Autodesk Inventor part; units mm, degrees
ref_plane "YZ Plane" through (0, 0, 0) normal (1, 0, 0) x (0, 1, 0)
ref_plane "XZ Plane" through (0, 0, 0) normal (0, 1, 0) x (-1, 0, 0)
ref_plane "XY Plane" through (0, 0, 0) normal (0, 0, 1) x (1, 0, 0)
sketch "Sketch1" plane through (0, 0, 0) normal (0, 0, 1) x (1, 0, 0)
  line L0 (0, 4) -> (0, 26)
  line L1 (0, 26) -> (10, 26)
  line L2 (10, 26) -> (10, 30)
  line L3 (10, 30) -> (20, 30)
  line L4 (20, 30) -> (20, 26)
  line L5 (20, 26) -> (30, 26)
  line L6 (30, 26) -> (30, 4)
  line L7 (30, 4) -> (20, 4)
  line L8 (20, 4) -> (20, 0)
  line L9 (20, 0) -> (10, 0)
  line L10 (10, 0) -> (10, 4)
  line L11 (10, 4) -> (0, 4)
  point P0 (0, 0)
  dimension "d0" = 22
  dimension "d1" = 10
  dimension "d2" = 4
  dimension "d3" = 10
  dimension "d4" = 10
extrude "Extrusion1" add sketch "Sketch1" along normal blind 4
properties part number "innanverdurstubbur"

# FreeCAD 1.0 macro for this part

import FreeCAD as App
import Part
import Sketcher

doc = App.newDocument("Part")
params = doc.addObject("Spreadsheet::Sheet", "Params")
for row, (alias, value) in enumerate([
    ("sketch1_width", "10 mm"),
    ("sketch1_height", "22 mm"),
    ("sketch1_height2", "4 mm"),
    ("pad1_length", "4 mm"),
], start=1):
    params.set(f"A{row}", alias)
    params.set(f"B{row}", "=" + value)
    params.setAlias(f"B{row}", alias)

body = doc.addObject("PartDesign::Body", "Body")

sketch1 = doc.addObject("Sketcher::SketchObject", "Sketch")
body.addObject(sketch1)
sketch1.AttachmentSupport = (doc.XY_Plane, [""])
sketch1.MapMode = "FlatFace"
sketch1.addGeometry(Part.LineSegment(App.Vector(0, 26, 0), App.Vector(0, 4, 0)), False)
sketch1.addGeometry(Part.LineSegment(App.Vector(0, 4, 0), App.Vector(10, 4, 0)), False)
sketch1.addGeometry(Part.LineSegment(App.Vector(10, 4, 0), App.Vector(10, 0, 0)), False)
sketch1.addGeometry(Part.LineSegment(App.Vector(10, 0, 0), App.Vector(20, 0, 0)), False)
sketch1.addGeometry(Part.LineSegment(App.Vector(20, 0, 0), App.Vector(20, 4, 0)), False)
sketch1.addGeometry(Part.LineSegment(App.Vector(20, 4, 0), App.Vector(30, 4, 0)), False)
sketch1.addGeometry(Part.LineSegment(App.Vector(30, 4, 0), App.Vector(30, 26, 0)), False)
sketch1.addGeometry(Part.LineSegment(App.Vector(30, 26, 0), App.Vector(20, 26, 0)), False)
sketch1.addGeometry(Part.LineSegment(App.Vector(20, 26, 0), App.Vector(20, 30, 0)), False)
sketch1.addGeometry(Part.LineSegment(App.Vector(20, 30, 0), App.Vector(10, 30, 0)), False)
sketch1.addGeometry(Part.LineSegment(App.Vector(10, 30, 0), App.Vector(10, 26, 0)), False)
sketch1.addGeometry(Part.LineSegment(App.Vector(10, 26, 0), App.Vector(0, 26, 0)), False)
sketch1.addConstraint(Sketcher.Constraint("Coincident", 0, 2, 1, 1))
sketch1.addConstraint(Sketcher.Constraint("Coincident", 1, 2, 2, 1))
sketch1.addConstraint(Sketcher.Constraint("Coincident", 2, 2, 3, 1))
sketch1.addConstraint(Sketcher.Constraint("Coincident", 3, 2, 4, 1))
sketch1.addConstraint(Sketcher.Constraint("Coincident", 4, 2, 5, 1))
sketch1.addConstraint(Sketcher.Constraint("Coincident", 5, 2, 6, 1))
sketch1.addConstraint(Sketcher.Constraint("Coincident", 6, 2, 7, 1))
sketch1.addConstraint(Sketcher.Constraint("Coincident", 7, 2, 8, 1))
sketch1.addConstraint(Sketcher.Constraint("Coincident", 8, 2, 9, 1))
sketch1.addConstraint(Sketcher.Constraint("Coincident", 9, 2, 10, 1))
sketch1.addConstraint(Sketcher.Constraint("Coincident", 10, 2, 11, 1))
sketch1.addConstraint(Sketcher.Constraint("Coincident", 11, 2, 0, 1))
sketch1.addConstraint(Sketcher.Constraint("Vertical", 0))
sketch1.addConstraint(Sketcher.Constraint("Horizontal", 1))
sketch1.addConstraint(Sketcher.Constraint("Vertical", 2))
sketch1.addConstraint(Sketcher.Constraint("Horizontal", 3))
sketch1.addConstraint(Sketcher.Constraint("Vertical", 4))
sketch1.addConstraint(Sketcher.Constraint("Horizontal", 5))
sketch1.addConstraint(Sketcher.Constraint("Vertical", 6))
sketch1.addConstraint(Sketcher.Constraint("Horizontal", 7))
sketch1.addConstraint(Sketcher.Constraint("Vertical", 8))
sketch1.addConstraint(Sketcher.Constraint("Horizontal", 9))
sketch1.addConstraint(Sketcher.Constraint("Vertical", 10))
sketch1.addConstraint(Sketcher.Constraint("Horizontal", 11))
sketch1.addConstraint(Sketcher.Constraint("PointOnObject", 0, 2, -2))
sketch1.addConstraint(Sketcher.Constraint("PointOnObject", 2, 2, -1))
sketch1.addConstraint(Sketcher.Constraint("Horizontal", 1, 2, 4, 2))
sketch1.addConstraint(Sketcher.Constraint("Horizontal", 7, 2, 10, 2))
sketch1.addConstraint(Sketcher.Constraint("Vertical", 4, 2, 7, 2))
sketch1.addConstraint(Sketcher.Constraint("Vertical", 2, 2, 9, 2))
sketch1.addConstraint(Sketcher.Constraint("Equal", 1, 3))
sketch1.addConstraint(Sketcher.Constraint("Equal", 3, 5))
sketch1.addConstraint(Sketcher.Constraint("Equal", 4, 8))
sketch1.addConstraint(Sketcher.Constraint("DistanceX", 1, 1, 1, 2, 10.0))
sketch1.addConstraint(Sketcher.Constraint("DistanceY", 0, 2, 0, 1, 22.0))
sketch1.addConstraint(Sketcher.Constraint("DistanceY", 2, 2, 2, 1, 4.0))
sketch1.setExpression("Constraints[33]", "Params.sketch1_width")
sketch1.setExpression("Constraints[34]", "Params.sketch1_height")
sketch1.setExpression("Constraints[35]", "Params.sketch1_height2")
pad1 = doc.addObject("PartDesign::Pad", "Pad")
body.addObject(pad1)
pad1.Profile = sketch1
pad1.setExpression("Length", "Params.pad1_length")

doc.recompute()
